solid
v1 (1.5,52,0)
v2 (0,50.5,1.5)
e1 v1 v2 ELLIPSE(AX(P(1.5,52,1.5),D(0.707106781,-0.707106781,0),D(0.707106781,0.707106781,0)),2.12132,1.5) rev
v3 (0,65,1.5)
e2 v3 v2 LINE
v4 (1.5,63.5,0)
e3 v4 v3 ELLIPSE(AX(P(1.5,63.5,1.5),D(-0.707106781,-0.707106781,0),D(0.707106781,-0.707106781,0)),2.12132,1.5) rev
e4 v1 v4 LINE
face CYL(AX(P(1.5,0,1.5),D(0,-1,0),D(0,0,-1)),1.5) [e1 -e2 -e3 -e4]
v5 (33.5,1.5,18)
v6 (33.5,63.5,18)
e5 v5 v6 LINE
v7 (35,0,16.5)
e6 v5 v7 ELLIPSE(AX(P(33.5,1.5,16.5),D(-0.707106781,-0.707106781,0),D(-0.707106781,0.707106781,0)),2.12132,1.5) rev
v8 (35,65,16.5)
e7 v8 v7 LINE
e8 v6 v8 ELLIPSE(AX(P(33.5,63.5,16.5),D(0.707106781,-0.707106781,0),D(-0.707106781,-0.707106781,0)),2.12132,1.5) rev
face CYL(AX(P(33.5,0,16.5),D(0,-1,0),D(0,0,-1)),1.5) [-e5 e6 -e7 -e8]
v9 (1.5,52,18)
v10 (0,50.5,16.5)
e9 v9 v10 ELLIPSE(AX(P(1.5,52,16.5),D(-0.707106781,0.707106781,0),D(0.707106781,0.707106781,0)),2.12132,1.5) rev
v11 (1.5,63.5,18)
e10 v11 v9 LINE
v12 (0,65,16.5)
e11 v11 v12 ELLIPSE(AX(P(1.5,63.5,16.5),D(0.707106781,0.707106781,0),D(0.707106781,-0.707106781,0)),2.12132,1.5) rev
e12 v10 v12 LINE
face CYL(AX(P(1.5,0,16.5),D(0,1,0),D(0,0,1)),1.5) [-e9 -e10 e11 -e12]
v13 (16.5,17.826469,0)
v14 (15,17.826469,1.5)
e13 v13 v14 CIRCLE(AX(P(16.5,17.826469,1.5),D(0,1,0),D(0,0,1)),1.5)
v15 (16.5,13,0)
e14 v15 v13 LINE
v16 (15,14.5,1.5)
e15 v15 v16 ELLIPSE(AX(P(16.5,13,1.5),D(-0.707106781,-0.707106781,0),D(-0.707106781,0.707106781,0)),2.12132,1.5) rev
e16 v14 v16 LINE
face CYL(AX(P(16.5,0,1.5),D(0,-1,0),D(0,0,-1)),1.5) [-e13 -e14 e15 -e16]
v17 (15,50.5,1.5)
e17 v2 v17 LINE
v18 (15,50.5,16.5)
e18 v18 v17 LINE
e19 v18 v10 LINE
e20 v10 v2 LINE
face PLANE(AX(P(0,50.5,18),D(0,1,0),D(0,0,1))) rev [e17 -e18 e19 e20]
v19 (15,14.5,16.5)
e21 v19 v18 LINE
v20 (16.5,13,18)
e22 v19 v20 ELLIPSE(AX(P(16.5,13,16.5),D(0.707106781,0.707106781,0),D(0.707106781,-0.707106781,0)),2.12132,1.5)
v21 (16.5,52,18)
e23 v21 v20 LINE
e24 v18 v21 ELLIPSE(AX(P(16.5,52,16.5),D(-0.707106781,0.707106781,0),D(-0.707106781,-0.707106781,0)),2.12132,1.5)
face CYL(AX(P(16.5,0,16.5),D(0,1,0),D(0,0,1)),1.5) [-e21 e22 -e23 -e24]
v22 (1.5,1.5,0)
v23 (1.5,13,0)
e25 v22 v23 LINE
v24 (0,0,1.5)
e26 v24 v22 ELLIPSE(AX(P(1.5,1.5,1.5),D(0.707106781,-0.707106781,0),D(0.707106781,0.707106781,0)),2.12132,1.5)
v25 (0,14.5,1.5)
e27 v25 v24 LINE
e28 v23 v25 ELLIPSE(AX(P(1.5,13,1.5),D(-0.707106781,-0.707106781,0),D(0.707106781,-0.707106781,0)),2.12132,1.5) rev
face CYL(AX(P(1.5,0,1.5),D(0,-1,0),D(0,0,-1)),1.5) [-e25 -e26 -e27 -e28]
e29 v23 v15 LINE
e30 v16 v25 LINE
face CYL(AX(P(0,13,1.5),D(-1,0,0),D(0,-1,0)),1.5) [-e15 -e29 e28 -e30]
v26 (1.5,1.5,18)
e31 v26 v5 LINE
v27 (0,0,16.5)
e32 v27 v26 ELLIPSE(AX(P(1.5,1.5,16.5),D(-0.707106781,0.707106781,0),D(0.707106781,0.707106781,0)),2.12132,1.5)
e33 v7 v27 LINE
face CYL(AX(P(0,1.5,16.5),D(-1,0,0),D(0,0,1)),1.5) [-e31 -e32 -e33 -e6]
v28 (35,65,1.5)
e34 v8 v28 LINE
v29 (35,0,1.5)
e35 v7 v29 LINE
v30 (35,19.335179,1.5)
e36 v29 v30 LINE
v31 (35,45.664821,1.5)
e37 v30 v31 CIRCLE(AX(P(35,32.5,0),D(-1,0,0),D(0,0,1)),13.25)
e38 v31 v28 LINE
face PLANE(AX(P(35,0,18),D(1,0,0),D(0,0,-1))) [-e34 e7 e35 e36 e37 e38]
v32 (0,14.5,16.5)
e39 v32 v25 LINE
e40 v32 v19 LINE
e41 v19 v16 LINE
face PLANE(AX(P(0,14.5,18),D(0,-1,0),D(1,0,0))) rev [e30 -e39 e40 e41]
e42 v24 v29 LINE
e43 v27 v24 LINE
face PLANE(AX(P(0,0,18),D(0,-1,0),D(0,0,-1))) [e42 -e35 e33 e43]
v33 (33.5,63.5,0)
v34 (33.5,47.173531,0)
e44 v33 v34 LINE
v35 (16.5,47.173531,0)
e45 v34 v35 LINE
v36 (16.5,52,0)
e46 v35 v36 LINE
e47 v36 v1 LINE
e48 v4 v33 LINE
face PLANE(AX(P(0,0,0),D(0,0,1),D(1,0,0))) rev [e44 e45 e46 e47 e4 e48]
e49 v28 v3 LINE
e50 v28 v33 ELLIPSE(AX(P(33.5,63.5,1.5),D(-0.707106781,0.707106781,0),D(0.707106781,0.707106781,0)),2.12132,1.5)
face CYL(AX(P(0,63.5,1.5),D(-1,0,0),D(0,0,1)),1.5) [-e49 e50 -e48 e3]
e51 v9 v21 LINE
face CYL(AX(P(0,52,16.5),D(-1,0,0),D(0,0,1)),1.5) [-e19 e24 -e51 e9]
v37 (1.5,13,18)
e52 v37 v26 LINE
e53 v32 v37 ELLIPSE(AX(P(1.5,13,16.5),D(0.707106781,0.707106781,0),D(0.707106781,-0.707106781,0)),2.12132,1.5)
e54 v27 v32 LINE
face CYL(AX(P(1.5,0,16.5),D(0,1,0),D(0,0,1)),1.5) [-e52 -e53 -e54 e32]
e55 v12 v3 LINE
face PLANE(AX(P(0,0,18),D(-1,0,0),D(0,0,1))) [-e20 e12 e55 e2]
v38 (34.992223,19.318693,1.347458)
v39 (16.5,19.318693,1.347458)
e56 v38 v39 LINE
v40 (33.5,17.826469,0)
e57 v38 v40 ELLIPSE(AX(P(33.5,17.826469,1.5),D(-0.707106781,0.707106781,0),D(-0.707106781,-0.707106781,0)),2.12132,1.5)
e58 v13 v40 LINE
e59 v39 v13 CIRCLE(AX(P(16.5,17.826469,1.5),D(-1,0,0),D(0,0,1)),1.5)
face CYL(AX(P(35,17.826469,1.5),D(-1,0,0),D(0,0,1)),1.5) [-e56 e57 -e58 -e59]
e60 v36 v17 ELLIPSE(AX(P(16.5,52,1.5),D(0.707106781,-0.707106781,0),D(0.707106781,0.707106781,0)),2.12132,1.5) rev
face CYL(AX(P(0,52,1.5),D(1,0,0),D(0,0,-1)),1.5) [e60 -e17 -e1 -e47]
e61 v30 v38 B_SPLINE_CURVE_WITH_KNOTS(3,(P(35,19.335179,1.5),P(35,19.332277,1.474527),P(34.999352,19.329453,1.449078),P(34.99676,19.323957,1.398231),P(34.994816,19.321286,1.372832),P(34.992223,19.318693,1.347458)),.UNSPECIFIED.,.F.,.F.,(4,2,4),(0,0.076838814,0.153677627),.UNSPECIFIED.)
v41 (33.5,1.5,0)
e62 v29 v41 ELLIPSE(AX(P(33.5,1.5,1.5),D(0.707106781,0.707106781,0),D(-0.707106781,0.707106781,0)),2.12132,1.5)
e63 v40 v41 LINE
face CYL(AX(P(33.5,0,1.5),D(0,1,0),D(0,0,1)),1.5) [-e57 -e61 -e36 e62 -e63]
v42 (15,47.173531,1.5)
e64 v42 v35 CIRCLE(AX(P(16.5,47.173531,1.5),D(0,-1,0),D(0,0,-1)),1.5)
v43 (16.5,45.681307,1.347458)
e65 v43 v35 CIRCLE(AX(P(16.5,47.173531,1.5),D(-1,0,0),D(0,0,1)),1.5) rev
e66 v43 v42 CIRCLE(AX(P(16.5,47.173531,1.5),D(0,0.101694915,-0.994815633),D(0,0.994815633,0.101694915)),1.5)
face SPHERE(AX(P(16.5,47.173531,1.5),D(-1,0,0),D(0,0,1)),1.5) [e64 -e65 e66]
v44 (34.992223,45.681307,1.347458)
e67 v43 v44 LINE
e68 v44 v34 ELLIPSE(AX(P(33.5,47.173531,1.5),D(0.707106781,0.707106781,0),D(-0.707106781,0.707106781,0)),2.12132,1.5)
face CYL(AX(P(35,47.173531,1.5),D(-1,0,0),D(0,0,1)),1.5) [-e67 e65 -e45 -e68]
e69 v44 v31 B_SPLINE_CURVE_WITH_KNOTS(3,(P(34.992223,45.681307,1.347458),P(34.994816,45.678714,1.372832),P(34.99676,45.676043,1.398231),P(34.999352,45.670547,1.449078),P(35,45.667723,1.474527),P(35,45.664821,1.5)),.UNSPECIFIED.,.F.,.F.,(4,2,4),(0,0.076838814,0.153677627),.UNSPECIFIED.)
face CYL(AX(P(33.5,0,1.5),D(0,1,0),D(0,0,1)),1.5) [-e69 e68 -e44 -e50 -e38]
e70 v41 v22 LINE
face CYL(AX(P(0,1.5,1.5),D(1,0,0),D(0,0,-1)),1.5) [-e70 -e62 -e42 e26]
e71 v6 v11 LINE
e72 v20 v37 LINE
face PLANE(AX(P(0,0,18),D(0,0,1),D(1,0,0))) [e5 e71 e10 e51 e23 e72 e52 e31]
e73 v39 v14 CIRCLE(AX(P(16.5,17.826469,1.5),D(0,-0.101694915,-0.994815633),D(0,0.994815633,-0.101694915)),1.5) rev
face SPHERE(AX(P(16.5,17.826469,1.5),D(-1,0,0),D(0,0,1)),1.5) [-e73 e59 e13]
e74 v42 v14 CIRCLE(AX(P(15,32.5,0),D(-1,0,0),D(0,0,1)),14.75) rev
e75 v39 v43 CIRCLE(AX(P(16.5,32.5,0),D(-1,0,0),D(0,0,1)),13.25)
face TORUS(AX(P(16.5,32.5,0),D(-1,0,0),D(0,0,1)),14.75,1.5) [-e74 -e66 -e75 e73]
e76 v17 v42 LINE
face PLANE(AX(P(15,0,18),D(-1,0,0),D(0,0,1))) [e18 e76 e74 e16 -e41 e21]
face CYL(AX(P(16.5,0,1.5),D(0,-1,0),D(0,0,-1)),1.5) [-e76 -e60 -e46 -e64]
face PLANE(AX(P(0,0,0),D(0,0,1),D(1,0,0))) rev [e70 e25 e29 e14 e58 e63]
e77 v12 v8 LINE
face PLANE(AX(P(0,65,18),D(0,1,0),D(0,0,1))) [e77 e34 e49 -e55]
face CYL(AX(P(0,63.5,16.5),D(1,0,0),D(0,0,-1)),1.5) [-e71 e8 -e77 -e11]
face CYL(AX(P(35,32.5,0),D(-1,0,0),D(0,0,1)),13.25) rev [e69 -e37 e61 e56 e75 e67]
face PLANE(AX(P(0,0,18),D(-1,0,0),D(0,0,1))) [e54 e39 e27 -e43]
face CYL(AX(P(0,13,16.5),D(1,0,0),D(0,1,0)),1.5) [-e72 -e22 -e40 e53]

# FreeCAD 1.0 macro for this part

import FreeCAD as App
import Part
import Sketcher

V = App.Vector


def edges_at(feature, points):
    """Names of the edges that pass closest to the given points."""
    edges = feature.Shape.Edges
    near = lambda p: min(range(len(edges)), key=lambda i: edges[i].distToShape(Part.Vertex(*p))[0])
    return sorted({f"Edge{near(p) + 1}" for p in points})


def add_polygon(sketch, points):
    """Adds a closed chain of lines whose ends are joined by coincident constraints."""
    first, n = sketch.GeometryCount, len(points)
    for a, b in zip(points, points[1:] + points[:1]):
        sketch.addGeometry(Part.LineSegment(App.Vector(*a, 0), App.Vector(*b, 0)), False)
    for i in range(n):
        sketch.addConstraint(Sketcher.Constraint("Coincident", first + i, 2, first + (i + 1) % n, 1))

doc = App.newDocument("Part")
body = doc.addObject("PartDesign::Body", "Body")

sketch1 = doc.addObject("Sketcher::SketchObject", "Sketch")
body.addObject(sketch1)
sketch1.AttachmentSupport = (doc.XY_Plane, [""])
sketch1.MapMode = "FlatFace"
add_polygon(sketch1, [(0, 14.5), (0, 0), (35, 0), (35, 65), (0, 65), (0, 50.5), (15, 50.5), (15, 14.5)])
sketch1.addConstraint(Sketcher.Constraint("Vertical", 0))
sketch1.addConstraint(Sketcher.Constraint("Horizontal", 1))
sketch1.addConstraint(Sketcher.Constraint("Vertical", 2))
sketch1.addConstraint(Sketcher.Constraint("Horizontal", 3))
sketch1.addConstraint(Sketcher.Constraint("Vertical", 4))
sketch1.addConstraint(Sketcher.Constraint("Horizontal", 5))
sketch1.addConstraint(Sketcher.Constraint("Vertical", 6))
sketch1.addConstraint(Sketcher.Constraint("Horizontal", 7))
sketch1.addConstraint(Sketcher.Constraint("Coincident", 0, 2, -1, 1))
sketch1.addConstraint(Sketcher.Constraint("PointOnObject", 3, 2, -2))
sketch1.addConstraint(Sketcher.Constraint("Equal", 0, 4))
sketch1.addConstraint(Sketcher.Constraint("DistanceX", 1, 1, 1, 2, 35.0))
sketch1.addConstraint(Sketcher.Constraint("DistanceX", 5, 1, 5, 2, 15.0))
sketch1.addConstraint(Sketcher.Constraint("DistanceY", 2, 1, 2, 2, 65.0))
sketch1.addConstraint(Sketcher.Constraint("DistanceY", 6, 2, 6, 1, 36.0))
pad1 = doc.addObject("PartDesign::Pad", "Pad")
body.addObject(pad1)
pad1.Profile = sketch1
pad1.Length = 18

sketch2 = doc.addObject("Sketcher::SketchObject", "Sketch001")
body.addObject(sketch2)
sketch2.AttachmentSupport = (doc.YZ_Plane, [""])
sketch2.MapMode = "FlatFace"
sketch2.addGeometry(Part.Circle(V(32.5, 0, 0), V(0, 0, 1), 13.25), False)
sketch2.addConstraint(Sketcher.Constraint("PointOnObject", 0, 3, -1))
sketch2.addConstraint(Sketcher.Constraint("Diameter", 0, 26.5))
sketch2.addConstraint(Sketcher.Constraint("DistanceX", -1, 1, 0, 3, 32.5))
pocket1 = doc.addObject("PartDesign::Pocket", "Pocket")
body.addObject(pocket1)
pocket1.Profile = sketch2
pocket1.Type = "ThroughAll"
pocket1.Reversed = True
doc.recompute()

fillet = doc.addObject("PartDesign::Fillet", "Fillet")
body.addObject(fillet)
fillet.Base = (pocket1, edges_at(pocket1, [
    (0, 57.75, 0),
    (17.5, 65, 0),
    (7.5, 14.5, 18),
    (35, 55.375, 0),
    (17.5, 0, 0),
    (0, 7.25, 0),
    (7.5, 14.5, 0),
    (15, 16.875, 0),
    (0, 7.25, 18),
    (17.5, 0, 18),
    (35, 32.5, 18),
    (15, 48.125, 0),
    (35, 9.625, 0),
    (25, 19.25, 0),
    (25, 45.75, 0),
    (17.5, 65, 18),
    (15, 32.5, 13.25),
    (0, 57.75, 18),
    (7.5, 50.5, 18),
    (15, 32.5, 18),
    (7.5, 50.5, 0),
]))
fillet.Radius = 1.5

doc.recompute()
